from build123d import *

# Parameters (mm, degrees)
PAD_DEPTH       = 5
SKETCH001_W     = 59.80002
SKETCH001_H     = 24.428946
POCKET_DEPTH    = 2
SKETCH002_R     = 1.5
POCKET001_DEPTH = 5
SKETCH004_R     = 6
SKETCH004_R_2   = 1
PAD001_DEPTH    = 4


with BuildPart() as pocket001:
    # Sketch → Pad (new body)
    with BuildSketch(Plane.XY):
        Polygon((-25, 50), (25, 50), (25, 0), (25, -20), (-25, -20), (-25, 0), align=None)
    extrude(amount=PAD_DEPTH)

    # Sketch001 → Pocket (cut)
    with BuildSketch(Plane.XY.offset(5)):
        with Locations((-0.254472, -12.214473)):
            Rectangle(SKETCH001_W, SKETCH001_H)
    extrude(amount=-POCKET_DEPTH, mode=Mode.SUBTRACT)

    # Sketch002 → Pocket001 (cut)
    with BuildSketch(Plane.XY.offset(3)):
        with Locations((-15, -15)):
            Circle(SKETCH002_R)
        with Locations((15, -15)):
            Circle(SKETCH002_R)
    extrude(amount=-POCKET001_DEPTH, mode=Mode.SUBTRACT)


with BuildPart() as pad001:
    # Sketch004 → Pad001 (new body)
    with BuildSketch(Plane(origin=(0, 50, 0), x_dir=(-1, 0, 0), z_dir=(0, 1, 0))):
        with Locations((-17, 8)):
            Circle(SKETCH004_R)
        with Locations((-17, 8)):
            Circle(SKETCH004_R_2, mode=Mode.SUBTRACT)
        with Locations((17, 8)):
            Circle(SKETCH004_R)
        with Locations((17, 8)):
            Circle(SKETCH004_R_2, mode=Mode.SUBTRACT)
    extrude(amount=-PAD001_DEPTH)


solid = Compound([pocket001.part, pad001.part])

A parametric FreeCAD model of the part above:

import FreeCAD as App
import Part
import Sketcher

doc = App.newDocument("Part")
body = doc.addObject("PartDesign::Body", "Body")

# Sketch on XY plane
sketch1 = doc.addObject("Sketcher::SketchObject", "Sketch")
body.addObject(sketch1)
sketch1.AttachmentSupport = (doc.XY_Plane, [""])
sketch1.MapMode = "FlatFace"
sketch1.addGeometry(Part.LineSegment(App.Vector(25, 50, 0), App.Vector(-25, 50, 0)), False)
sketch1.addGeometry(Part.LineSegment(App.Vector(-25, 50, 0), App.Vector(-25, -20, 0)), False)
sketch1.addGeometry(Part.LineSegment(App.Vector(-25, -20, 0), App.Vector(25, -20, 0)), False)
sketch1.addGeometry(Part.LineSegment(App.Vector(25, -20, 0), App.Vector(25, 50, 0)), False)
sketch1.addConstraint(Sketcher.Constraint("Coincident", 0, 2, 1, 1))
sketch1.addConstraint(Sketcher.Constraint("Coincident", 1, 2, 2, 1))
sketch1.addConstraint(Sketcher.Constraint("Coincident", 2, 2, 3, 1))
sketch1.addConstraint(Sketcher.Constraint("Coincident", 3, 2, 0, 1))
sketch1.addConstraint(Sketcher.Constraint("Horizontal", 0))
sketch1.addConstraint(Sketcher.Constraint("Vertical", 1))
sketch1.addConstraint(Sketcher.Constraint("Horizontal", 2))
sketch1.addConstraint(Sketcher.Constraint("Vertical", 3))
sketch1.addConstraint(Sketcher.Constraint("DistanceX", 0, 2, 0, 1, 50.0))
sketch1.addConstraint(Sketcher.Constraint("DistanceY", 1, 2, 1, 1, 70.0))
sketch1.addConstraint(Sketcher.Constraint("DistanceX", 0, 2, -1, 1, 25.0))
sketch1.addConstraint(Sketcher.Constraint("DistanceY", -1, 1, 0, 2, 50.0))
pad1 = doc.addObject("PartDesign::Pad", "Pad")
body.addObject(pad1)
pad1.Profile = sketch1
pad1.Length = 5

# Sketch on XY plane
sketch2 = doc.addObject("Sketcher::SketchObject", "Sketch001")
body.addObject(sketch2)
sketch2.AttachmentSupport = (doc.XY_Plane, [""])
sketch2.MapMode = "FlatFace"
sketch2.AttachmentOffset = App.Placement(App.Vector(0, 0, 5), App.Rotation())
sketch2.addGeometry(Part.LineSegment(App.Vector(-30, 0, 0), App.Vector(-30, -24, 0)), False)
sketch2.addGeometry(Part.LineSegment(App.Vector(-30, -24, 0), App.Vector(30, -24, 0)), False)
sketch2.addGeometry(Part.LineSegment(App.Vector(30, -24, 0), App.Vector(30, 0, 0)), False)
sketch2.addGeometry(Part.LineSegment(App.Vector(30, 0, 0), App.Vector(-30, 0, 0)), False)
sketch2.addConstraint(Sketcher.Constraint("Coincident", 0, 2, 1, 1))
sketch2.addConstraint(Sketcher.Constraint("Coincident", 1, 2, 2, 1))
sketch2.addConstraint(Sketcher.Constraint("Coincident", 2, 2, 3, 1))
sketch2.addConstraint(Sketcher.Constraint("Coincident", 3, 2, 0, 1))
sketch2.addConstraint(Sketcher.Constraint("Vertical", 0))
sketch2.addConstraint(Sketcher.Constraint("Horizontal", 1))
sketch2.addConstraint(Sketcher.Constraint("Vertical", 2))
sketch2.addConstraint(Sketcher.Constraint("Horizontal", 3))
sketch2.addConstraint(Sketcher.Constraint("PointOnObject", 2, 2, -1))
sketch2.addConstraint(Sketcher.Constraint("DistanceX", 1, 1, 1, 2, 59.80002))
sketch2.addConstraint(Sketcher.Constraint("DistanceY", 0, 2, 0, 1, 24.428946))
sketch2.addConstraint(Sketcher.Constraint("DistanceX", 0, 2, -1, 1, 30.154482))
pocket1 = doc.addObject("PartDesign::Pocket", "Pocket")
body.addObject(pocket1)
pocket1.Profile = sketch2
pocket1.Length = 2

# Sketch on XY plane
sketch3 = doc.addObject("Sketcher::SketchObject", "Sketch002")
body.addObject(sketch3)
sketch3.AttachmentSupport = (doc.XY_Plane, [""])
sketch3.MapMode = "FlatFace"
sketch3.AttachmentOffset = App.Placement(App.Vector(0, 0, 3), App.Rotation())
sketch3.addGeometry(Part.Circle(App.Vector(-15, -15, 0), App.Vector(0, 0, 1), 1.5), False)
sketch3.addGeometry(Part.Circle(App.Vector(15, -15, 0), App.Vector(0, 0, 1), 1.5), False)
sketch3.addConstraint(Sketcher.Constraint("Equal", 0, 1))
sketch3.addConstraint(Sketcher.Constraint("Symmetric", 0, 3, 1, 3, -2))
sketch3.addConstraint(Sketcher.Constraint("Diameter", 0, 3.0))
sketch3.addConstraint(Sketcher.Constraint("DistanceX", 0, 3, -1, 1, 15.0))
sketch3.addConstraint(Sketcher.Constraint("DistanceY", 0, 3, -1, 1, 15.0))
pocket2 = doc.addObject("PartDesign::Pocket", "Pocket001")
body.addObject(pocket2)
pocket2.Profile = sketch3
pocket2.Length = 5
body2 = doc.addObject("PartDesign::Body", "Body001")
body2.AllowCompound = True

# Sketch on XZ plane
sketch4 = doc.addObject("Sketcher::SketchObject", "Sketch003")
body2.addObject(sketch4)
sketch4.AttachmentSupport = (doc.getObject("XZ_Plane001"), [""])
sketch4.MapMode = "FlatFace"
sketch4.AttachmentOffset = App.Placement(App.Vector(0, 0, -50), App.Rotation())
sketch4.addGeometry(Part.Circle(App.Vector(17, 8, 0), App.Vector(0, 0, 1), 6), False)
sketch4.addGeometry(Part.Circle(App.Vector(17, 8, 0), App.Vector(0, 0, 1), 1), False)
sketch4.addGeometry(Part.Circle(App.Vector(-17, 8, 0), App.Vector(0, 0, 1), 6), False)
sketch4.addGeometry(Part.Circle(App.Vector(-17, 8, 0), App.Vector(0, 0, 1), 1), False)
sketch4.addConstraint(Sketcher.Constraint("Coincident", 1, 3, 0, 3))
sketch4.addConstraint(Sketcher.Constraint("Coincident", 3, 3, 2, 3))
sketch4.addConstraint(Sketcher.Constraint("Equal", 0, 2))
sketch4.addConstraint(Sketcher.Constraint("Equal", 1, 3))
sketch4.addConstraint(Sketcher.Constraint("Symmetric", 0, 3, 2, 3, -2))
sketch4.addConstraint(Sketcher.Constraint("Diameter", 0, 12.0))
sketch4.addConstraint(Sketcher.Constraint("Diameter", 1, 2.0))
sketch4.addConstraint(Sketcher.Constraint("DistanceX", -1, 1, 0, 3, 17.0))
sketch4.addConstraint(Sketcher.Constraint("DistanceY", -1, 1, 0, 3, 8.0))
pad2 = doc.addObject("PartDesign::Pad", "Pad001")
body2.addObject(pad2)
pad2.Profile = sketch4
pad2.Length = 4

doc.recompute()
